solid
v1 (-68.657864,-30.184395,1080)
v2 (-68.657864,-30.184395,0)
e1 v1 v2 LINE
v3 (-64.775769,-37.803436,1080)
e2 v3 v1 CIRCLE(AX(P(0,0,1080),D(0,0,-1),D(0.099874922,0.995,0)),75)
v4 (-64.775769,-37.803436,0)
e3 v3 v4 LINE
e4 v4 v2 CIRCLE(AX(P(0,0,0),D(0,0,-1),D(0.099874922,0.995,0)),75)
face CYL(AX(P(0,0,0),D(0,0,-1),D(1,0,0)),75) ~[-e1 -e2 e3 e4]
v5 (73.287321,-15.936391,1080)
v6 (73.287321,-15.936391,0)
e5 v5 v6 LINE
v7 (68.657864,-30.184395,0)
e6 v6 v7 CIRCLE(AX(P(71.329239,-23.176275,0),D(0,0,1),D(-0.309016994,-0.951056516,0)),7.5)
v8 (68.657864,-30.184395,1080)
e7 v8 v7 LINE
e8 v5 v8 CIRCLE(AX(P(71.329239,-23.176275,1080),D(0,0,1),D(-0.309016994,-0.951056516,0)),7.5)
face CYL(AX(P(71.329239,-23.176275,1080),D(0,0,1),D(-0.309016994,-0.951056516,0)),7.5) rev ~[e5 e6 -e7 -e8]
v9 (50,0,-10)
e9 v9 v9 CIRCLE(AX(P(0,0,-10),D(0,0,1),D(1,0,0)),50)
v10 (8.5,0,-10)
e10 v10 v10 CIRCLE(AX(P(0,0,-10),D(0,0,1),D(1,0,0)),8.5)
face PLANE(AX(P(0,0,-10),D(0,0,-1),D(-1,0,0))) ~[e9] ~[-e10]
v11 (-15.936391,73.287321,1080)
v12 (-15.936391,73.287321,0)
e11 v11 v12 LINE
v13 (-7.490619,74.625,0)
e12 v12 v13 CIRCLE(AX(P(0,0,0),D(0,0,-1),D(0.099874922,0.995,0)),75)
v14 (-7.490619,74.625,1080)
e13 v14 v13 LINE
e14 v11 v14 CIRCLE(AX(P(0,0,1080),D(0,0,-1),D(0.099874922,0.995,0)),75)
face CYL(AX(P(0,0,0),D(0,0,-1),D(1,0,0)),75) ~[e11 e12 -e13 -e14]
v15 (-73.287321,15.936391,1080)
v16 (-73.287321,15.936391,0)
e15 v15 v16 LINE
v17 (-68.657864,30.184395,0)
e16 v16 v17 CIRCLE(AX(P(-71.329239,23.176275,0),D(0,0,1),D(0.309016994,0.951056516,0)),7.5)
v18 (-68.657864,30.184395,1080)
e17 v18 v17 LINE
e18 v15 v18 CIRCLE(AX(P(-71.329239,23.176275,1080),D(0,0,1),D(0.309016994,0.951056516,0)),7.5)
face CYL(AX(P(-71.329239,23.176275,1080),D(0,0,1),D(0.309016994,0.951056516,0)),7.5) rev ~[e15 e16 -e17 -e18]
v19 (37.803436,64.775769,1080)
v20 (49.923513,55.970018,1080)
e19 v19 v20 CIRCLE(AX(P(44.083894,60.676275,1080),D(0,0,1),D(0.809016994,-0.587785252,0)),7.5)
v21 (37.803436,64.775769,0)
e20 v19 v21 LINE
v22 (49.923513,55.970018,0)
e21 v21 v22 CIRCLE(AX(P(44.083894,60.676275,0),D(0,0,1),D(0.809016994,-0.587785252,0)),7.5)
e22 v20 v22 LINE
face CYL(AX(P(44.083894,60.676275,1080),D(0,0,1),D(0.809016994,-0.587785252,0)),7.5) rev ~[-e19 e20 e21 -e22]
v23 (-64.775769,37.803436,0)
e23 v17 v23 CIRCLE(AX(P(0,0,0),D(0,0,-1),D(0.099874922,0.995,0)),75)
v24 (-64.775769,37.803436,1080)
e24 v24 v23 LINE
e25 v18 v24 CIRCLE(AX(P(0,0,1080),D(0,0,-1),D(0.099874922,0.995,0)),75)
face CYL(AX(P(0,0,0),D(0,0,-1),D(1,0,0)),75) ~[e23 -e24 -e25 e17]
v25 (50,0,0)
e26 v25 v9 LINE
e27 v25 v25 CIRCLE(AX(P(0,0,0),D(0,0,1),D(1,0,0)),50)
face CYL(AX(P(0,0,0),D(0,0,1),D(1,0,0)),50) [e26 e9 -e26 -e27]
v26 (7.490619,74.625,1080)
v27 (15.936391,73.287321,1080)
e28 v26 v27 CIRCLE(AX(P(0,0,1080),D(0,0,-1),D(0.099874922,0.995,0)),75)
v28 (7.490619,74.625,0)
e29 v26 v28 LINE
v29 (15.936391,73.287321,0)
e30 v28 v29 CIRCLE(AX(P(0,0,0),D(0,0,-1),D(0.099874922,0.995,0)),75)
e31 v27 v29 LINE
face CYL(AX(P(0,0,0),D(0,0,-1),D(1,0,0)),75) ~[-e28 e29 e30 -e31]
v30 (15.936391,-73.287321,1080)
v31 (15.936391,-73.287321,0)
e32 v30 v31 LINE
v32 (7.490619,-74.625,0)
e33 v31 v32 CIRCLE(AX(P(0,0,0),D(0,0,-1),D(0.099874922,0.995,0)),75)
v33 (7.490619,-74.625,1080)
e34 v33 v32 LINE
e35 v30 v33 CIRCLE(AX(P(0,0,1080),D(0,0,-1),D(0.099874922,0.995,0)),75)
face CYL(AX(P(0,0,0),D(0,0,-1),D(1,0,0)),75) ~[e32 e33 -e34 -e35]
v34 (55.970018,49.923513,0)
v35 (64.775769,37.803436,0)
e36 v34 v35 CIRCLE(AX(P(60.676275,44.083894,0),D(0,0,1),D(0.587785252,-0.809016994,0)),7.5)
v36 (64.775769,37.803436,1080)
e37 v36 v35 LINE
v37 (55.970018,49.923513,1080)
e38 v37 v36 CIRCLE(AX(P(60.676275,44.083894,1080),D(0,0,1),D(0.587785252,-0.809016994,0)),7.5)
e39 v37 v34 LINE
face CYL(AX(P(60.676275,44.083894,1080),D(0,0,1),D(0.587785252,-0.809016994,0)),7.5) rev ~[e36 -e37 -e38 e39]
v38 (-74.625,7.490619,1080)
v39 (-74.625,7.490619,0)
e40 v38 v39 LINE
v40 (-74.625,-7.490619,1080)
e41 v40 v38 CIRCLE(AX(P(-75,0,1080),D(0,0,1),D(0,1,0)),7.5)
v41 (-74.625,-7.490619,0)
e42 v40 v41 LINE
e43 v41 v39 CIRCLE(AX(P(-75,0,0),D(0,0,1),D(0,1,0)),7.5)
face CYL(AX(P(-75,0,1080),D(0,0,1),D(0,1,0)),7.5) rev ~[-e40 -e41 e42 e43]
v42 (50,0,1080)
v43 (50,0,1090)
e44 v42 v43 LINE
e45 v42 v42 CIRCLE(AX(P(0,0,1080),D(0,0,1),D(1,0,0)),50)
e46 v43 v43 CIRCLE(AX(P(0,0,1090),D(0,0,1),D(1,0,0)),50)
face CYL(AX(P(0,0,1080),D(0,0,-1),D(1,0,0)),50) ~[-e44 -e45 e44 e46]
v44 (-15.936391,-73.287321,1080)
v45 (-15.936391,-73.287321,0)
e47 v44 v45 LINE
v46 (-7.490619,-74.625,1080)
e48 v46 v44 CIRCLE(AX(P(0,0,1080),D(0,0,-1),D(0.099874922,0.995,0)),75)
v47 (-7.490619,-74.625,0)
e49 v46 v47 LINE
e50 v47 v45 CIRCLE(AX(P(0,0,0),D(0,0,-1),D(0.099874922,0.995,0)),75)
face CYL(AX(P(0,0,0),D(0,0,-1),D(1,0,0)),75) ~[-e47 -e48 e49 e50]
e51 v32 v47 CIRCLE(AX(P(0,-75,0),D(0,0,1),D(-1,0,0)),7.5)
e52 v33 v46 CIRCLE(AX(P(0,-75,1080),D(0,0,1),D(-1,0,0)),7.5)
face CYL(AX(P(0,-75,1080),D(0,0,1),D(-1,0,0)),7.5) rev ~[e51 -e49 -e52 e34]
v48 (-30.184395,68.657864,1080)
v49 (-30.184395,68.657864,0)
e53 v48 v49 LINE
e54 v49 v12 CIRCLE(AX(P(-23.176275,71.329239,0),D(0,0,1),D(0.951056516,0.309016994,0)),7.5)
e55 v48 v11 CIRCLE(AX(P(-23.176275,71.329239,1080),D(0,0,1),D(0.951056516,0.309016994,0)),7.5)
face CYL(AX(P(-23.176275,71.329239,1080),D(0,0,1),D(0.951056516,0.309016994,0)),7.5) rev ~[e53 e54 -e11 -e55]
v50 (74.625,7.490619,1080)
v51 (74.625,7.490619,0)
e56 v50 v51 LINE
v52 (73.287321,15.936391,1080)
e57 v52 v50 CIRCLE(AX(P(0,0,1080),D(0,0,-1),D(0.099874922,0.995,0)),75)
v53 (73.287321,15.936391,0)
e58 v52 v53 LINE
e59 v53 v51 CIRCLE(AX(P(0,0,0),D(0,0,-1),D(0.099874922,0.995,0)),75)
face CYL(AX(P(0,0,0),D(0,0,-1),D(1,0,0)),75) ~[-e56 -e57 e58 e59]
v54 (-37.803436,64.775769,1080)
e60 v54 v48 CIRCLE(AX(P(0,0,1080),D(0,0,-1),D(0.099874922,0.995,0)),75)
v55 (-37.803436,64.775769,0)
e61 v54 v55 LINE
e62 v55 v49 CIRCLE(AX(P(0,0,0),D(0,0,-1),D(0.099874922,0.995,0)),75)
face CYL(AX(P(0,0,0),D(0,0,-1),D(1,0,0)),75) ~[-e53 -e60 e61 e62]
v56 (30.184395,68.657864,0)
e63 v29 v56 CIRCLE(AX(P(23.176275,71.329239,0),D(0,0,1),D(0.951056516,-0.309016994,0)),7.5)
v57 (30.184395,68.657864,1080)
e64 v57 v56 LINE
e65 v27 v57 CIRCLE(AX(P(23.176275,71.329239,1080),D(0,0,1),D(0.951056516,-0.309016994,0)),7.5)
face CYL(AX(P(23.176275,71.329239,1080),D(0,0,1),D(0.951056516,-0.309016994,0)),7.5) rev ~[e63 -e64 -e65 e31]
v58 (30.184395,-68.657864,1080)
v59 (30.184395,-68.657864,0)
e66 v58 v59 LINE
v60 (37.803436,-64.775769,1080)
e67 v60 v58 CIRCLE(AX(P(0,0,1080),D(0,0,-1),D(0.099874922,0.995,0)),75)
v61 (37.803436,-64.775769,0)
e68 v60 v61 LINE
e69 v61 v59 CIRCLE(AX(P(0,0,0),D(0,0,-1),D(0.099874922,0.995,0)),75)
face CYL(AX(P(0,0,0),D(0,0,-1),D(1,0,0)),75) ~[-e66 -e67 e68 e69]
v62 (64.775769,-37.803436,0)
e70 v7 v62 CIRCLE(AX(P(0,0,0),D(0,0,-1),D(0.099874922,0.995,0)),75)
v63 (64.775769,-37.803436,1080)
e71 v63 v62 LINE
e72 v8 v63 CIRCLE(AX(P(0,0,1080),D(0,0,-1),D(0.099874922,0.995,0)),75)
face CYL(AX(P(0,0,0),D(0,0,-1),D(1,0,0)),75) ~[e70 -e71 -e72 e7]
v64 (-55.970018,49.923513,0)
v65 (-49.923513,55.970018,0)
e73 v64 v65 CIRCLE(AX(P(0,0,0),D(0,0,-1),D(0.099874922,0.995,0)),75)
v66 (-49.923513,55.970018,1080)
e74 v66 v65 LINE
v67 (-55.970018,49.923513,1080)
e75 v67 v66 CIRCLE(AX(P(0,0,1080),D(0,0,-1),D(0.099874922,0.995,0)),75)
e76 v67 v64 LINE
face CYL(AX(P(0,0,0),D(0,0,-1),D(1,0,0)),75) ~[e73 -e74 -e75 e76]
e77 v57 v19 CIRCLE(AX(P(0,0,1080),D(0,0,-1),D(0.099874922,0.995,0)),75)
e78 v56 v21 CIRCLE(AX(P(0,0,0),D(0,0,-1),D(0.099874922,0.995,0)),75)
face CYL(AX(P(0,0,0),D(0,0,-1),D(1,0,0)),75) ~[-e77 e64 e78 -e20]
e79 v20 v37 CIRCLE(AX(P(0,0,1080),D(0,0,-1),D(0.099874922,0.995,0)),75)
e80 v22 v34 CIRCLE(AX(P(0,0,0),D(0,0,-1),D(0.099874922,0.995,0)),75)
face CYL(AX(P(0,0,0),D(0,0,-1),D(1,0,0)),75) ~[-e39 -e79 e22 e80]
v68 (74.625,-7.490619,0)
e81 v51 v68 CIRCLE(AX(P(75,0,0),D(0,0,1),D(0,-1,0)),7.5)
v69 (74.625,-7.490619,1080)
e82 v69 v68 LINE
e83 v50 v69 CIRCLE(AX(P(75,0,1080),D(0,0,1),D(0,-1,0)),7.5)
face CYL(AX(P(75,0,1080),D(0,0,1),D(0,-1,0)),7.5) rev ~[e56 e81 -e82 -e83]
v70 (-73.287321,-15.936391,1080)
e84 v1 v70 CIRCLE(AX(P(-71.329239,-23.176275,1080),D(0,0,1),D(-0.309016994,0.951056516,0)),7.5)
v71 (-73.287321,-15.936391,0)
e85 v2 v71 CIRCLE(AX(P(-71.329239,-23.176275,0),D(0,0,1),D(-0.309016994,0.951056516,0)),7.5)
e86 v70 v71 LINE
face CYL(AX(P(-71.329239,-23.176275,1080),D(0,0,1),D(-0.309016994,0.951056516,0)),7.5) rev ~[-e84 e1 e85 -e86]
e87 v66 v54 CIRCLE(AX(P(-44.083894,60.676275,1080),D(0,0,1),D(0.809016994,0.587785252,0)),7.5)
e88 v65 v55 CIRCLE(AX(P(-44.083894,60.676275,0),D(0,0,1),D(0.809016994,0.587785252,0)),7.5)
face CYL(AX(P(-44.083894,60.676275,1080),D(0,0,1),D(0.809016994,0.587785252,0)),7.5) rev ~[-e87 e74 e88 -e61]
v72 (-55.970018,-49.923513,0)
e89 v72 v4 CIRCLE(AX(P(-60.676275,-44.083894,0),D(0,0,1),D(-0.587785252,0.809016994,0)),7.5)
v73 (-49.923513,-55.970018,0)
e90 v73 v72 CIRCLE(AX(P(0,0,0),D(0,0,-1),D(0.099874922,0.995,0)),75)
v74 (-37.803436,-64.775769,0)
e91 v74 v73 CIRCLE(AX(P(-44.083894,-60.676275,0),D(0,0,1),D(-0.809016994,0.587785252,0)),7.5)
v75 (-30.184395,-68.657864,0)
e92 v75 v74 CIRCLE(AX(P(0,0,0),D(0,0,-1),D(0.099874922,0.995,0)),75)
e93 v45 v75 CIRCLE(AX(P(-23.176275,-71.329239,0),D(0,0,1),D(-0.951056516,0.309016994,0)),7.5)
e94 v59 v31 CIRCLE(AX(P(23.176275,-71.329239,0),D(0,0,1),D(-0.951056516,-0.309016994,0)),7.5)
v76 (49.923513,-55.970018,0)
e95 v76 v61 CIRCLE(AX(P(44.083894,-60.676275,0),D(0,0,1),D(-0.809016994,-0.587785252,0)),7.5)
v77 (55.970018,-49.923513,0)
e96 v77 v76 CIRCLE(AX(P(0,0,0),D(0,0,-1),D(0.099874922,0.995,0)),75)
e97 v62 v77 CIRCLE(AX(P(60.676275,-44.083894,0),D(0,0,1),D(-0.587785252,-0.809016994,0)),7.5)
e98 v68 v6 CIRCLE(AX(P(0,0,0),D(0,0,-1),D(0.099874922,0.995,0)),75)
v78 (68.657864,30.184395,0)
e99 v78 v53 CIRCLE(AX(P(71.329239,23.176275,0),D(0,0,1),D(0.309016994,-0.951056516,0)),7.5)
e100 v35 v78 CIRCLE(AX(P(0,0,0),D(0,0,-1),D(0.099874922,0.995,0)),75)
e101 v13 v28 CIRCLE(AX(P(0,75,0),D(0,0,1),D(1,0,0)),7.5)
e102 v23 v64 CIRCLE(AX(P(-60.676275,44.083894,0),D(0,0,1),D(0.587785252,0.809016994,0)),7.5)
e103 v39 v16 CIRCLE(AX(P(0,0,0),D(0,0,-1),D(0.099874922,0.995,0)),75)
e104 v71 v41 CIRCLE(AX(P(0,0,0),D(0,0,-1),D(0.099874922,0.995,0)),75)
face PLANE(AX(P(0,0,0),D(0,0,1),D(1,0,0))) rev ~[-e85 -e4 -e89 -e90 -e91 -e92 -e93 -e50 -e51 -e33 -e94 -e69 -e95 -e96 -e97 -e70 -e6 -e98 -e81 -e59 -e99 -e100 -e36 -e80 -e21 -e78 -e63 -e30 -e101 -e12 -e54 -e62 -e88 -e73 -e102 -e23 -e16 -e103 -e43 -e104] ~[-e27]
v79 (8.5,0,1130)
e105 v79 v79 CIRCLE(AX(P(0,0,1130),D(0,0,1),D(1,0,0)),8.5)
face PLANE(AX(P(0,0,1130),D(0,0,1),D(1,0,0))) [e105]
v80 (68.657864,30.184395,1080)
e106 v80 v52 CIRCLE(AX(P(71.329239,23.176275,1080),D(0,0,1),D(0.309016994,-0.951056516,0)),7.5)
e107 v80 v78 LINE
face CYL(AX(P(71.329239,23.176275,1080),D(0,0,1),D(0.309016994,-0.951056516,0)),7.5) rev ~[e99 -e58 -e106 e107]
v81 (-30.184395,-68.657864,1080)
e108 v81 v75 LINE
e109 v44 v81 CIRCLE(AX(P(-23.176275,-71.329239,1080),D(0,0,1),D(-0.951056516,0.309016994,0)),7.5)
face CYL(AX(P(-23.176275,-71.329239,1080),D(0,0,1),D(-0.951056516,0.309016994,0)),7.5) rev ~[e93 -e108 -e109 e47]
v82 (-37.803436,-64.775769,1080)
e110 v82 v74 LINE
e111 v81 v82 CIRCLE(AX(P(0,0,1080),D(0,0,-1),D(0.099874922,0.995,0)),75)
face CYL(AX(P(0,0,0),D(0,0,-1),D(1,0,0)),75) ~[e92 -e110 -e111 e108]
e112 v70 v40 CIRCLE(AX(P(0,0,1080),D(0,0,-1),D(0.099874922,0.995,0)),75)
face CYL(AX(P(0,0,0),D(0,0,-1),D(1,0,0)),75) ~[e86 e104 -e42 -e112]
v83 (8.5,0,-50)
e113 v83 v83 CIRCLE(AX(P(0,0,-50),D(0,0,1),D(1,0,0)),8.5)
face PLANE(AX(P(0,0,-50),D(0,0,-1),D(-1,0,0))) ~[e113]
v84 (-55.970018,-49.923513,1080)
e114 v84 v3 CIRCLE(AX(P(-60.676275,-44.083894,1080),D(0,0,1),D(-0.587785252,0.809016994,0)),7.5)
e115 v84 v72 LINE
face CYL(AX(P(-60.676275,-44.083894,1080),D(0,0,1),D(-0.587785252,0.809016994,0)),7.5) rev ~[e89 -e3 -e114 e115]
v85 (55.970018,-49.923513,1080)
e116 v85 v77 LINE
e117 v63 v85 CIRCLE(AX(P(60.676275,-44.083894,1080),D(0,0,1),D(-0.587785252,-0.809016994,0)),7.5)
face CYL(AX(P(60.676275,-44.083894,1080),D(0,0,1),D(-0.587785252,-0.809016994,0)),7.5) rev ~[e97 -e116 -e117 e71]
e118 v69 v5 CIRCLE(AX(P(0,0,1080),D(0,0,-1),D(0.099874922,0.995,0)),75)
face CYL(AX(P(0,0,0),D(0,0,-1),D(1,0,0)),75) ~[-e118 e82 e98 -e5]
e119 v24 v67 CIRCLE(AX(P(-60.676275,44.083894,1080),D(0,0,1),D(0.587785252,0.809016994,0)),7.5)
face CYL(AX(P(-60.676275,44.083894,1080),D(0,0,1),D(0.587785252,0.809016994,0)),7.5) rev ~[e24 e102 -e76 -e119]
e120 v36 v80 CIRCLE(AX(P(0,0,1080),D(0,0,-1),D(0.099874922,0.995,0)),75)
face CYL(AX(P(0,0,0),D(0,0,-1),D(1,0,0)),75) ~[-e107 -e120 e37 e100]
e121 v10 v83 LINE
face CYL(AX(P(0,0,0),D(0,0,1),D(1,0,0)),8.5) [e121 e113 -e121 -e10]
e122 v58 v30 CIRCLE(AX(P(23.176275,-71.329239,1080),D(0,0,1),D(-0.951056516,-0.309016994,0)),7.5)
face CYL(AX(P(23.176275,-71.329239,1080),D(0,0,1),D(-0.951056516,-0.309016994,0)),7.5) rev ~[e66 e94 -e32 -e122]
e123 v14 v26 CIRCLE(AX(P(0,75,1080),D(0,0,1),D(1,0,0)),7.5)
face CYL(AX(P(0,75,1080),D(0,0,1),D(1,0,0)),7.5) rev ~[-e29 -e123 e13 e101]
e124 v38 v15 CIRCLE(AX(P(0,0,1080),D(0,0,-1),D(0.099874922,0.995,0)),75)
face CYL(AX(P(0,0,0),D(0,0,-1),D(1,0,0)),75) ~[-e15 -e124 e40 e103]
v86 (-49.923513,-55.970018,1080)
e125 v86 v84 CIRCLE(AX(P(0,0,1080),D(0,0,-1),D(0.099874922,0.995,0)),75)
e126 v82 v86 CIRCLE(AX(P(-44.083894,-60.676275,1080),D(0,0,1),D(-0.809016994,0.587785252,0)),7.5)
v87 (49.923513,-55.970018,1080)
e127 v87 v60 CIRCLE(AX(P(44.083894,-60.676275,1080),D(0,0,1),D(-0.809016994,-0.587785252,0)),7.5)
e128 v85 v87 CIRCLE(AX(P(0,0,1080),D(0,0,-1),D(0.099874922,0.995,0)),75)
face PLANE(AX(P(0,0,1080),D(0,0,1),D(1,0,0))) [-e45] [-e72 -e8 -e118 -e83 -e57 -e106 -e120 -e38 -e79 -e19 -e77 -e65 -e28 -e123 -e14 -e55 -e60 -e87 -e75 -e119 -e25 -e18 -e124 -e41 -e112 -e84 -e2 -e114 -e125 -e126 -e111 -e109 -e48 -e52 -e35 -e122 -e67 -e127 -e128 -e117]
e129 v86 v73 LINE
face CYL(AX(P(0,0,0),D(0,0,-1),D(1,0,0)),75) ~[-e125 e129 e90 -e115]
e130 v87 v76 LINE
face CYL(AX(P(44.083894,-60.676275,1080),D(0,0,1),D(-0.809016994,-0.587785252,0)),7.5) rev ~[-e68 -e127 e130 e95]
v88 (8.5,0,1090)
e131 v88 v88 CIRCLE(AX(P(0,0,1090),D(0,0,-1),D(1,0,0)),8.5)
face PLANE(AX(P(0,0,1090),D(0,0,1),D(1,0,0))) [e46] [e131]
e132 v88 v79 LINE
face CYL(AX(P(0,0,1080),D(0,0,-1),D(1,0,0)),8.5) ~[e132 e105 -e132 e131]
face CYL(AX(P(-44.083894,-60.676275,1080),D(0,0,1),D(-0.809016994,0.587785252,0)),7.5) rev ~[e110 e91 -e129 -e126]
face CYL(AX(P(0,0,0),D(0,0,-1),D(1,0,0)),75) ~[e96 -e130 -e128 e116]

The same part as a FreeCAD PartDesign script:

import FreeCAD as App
import Part
import Sketcher
Q = App.Units.Quantity

doc = App.newDocument("Part")
body = doc.addObject("PartDesign::Body", "Body")

sketch1 = doc.addObject("Sketcher::SketchObject", "Sketch")
body.addObject(sketch1)
sketch1.AttachmentSupport = (doc.XY_Plane, [""])
sketch1.MapMode = "FlatFace"
sketch1.addGeometry(Part.Circle(App.Vector(0, 0, 0), App.Vector(0, 0, 1), 75), False)
sketch1.addConstraint([
    Sketcher.Constraint("Coincident", 0, 3, -1, 1),
    Sketcher.Constraint("Diameter", 0, Q("150 mm")),
])
pad1 = doc.addObject("PartDesign::Pad", "Pad")
body.addObject(pad1)
pad1.Profile = sketch1
pad1.Length = 1080

sketch2 = doc.addObject("Sketcher::SketchObject", "Sketch001")
body.addObject(sketch2)
sketch2.AttachmentSupport = (doc.XY_Plane, [""])
sketch2.MapMode = "FlatFace"
sketch2.AttachmentOffset = App.Placement(App.Vector(0, 0, 1080), App.Rotation())
sketch2.addGeometry(Part.Circle(App.Vector(0, 0, 0), App.Vector(0, 0, 1), 8.5), False)
sketch2.addConstraint([
    Sketcher.Constraint("Coincident", 0, 3, -1, 1),
    Sketcher.Constraint("Diameter", 0, Q("17 mm")),
])
pad2 = doc.addObject("PartDesign::Pad", "Pad001")
body.addObject(pad2)
pad2.Profile = sketch2
pad2.Length = 50
doc.recompute()

datumplane = doc.addObject("PartDesign::Plane", "DatumPlane")
body.addObject(datumplane)
datumplane.AttachmentSupport = (doc.XY_Plane, [""])
datumplane.MapMode = "FlatFace"
datumplane.AttachmentOffset = App.Placement(App.Vector(0, 0, 540), App.Rotation())
mirrored = doc.addObject("PartDesign::Mirrored", "Mirrored")
body.addObject(mirrored)
mirrored.Originals = [pad2]
mirrored.MirrorPlane = (datumplane, [""])
body.Tip = mirrored

sketch3 = doc.addObject("Sketcher::SketchObject", "Sketch002")
body.addObject(sketch3)
sketch3.AttachmentSupport = (doc.XY_Plane, [""])
sketch3.MapMode = "FlatFace"
sketch3.AttachmentOffset = App.Placement(App.Vector(0, 0, 1080), App.Rotation())
sketch3.addGeometry(Part.Circle(App.Vector(0, 0, 0), App.Vector(0, 0, 1), 50), False)
sketch3.addConstraint([
    Sketcher.Constraint("Coincident", 0, 3, -1, 1),
    Sketcher.Constraint("Diameter", 0, Q("100 mm")),
])
pad3 = doc.addObject("PartDesign::Pad", "Pad002")
body.addObject(pad3)
pad3.Profile = sketch3
pad3.Length = 10
doc.recompute()

datumplane2 = doc.addObject("PartDesign::Plane", "DatumPlane001")
body.addObject(datumplane2)
datumplane2.AttachmentSupport = (doc.XY_Plane, [""])
datumplane2.MapMode = "FlatFace"
datumplane2.AttachmentOffset = App.Placement(App.Vector(0, 0, 540), App.Rotation())
mirrored2 = doc.addObject("PartDesign::Mirrored", "Mirrored001")
body.addObject(mirrored2)
mirrored2.Originals = [pad3]
mirrored2.MirrorPlane = (datumplane2, [""])
body.Tip = mirrored2

sketch4 = doc.addObject("Sketcher::SketchObject", "Sketch003")
body.addObject(sketch4)
sketch4.AttachmentSupport = (doc.XY_Plane, [""])
sketch4.MapMode = "FlatFace"
sketch4.AttachmentOffset = App.Placement(App.Vector(0, 0, 1080), App.Rotation())
sketch4.addGeometry(Part.Circle(App.Vector(0, 75, 0), App.Vector(0, 0, 1), 7.5), False)
sketch4.addConstraint([
    Sketcher.Constraint("PointOnObject", 0, 3, -2),
    Sketcher.Constraint("Diameter", 0, Q("15 mm")),
    Sketcher.Constraint("DistanceY", -1, 1, 0, 3, Q("75 mm")),
])
pocket1 = doc.addObject("PartDesign::Pocket", "Pocket")
body.addObject(pocket1)
pocket1.Profile = sketch4
pocket1.Type = "ThroughAll"
doc.recompute()

polarpattern = doc.addObject("PartDesign::PolarPattern", "PolarPattern")
body.addObject(polarpattern)
polarpattern.Originals = [pocket1]
polarpattern.Axis = (doc.Z_Axis, [""])
polarpattern.Angle = 360
polarpattern.Occurrences = 20
body.Tip = polarpattern

doc.recompute()
